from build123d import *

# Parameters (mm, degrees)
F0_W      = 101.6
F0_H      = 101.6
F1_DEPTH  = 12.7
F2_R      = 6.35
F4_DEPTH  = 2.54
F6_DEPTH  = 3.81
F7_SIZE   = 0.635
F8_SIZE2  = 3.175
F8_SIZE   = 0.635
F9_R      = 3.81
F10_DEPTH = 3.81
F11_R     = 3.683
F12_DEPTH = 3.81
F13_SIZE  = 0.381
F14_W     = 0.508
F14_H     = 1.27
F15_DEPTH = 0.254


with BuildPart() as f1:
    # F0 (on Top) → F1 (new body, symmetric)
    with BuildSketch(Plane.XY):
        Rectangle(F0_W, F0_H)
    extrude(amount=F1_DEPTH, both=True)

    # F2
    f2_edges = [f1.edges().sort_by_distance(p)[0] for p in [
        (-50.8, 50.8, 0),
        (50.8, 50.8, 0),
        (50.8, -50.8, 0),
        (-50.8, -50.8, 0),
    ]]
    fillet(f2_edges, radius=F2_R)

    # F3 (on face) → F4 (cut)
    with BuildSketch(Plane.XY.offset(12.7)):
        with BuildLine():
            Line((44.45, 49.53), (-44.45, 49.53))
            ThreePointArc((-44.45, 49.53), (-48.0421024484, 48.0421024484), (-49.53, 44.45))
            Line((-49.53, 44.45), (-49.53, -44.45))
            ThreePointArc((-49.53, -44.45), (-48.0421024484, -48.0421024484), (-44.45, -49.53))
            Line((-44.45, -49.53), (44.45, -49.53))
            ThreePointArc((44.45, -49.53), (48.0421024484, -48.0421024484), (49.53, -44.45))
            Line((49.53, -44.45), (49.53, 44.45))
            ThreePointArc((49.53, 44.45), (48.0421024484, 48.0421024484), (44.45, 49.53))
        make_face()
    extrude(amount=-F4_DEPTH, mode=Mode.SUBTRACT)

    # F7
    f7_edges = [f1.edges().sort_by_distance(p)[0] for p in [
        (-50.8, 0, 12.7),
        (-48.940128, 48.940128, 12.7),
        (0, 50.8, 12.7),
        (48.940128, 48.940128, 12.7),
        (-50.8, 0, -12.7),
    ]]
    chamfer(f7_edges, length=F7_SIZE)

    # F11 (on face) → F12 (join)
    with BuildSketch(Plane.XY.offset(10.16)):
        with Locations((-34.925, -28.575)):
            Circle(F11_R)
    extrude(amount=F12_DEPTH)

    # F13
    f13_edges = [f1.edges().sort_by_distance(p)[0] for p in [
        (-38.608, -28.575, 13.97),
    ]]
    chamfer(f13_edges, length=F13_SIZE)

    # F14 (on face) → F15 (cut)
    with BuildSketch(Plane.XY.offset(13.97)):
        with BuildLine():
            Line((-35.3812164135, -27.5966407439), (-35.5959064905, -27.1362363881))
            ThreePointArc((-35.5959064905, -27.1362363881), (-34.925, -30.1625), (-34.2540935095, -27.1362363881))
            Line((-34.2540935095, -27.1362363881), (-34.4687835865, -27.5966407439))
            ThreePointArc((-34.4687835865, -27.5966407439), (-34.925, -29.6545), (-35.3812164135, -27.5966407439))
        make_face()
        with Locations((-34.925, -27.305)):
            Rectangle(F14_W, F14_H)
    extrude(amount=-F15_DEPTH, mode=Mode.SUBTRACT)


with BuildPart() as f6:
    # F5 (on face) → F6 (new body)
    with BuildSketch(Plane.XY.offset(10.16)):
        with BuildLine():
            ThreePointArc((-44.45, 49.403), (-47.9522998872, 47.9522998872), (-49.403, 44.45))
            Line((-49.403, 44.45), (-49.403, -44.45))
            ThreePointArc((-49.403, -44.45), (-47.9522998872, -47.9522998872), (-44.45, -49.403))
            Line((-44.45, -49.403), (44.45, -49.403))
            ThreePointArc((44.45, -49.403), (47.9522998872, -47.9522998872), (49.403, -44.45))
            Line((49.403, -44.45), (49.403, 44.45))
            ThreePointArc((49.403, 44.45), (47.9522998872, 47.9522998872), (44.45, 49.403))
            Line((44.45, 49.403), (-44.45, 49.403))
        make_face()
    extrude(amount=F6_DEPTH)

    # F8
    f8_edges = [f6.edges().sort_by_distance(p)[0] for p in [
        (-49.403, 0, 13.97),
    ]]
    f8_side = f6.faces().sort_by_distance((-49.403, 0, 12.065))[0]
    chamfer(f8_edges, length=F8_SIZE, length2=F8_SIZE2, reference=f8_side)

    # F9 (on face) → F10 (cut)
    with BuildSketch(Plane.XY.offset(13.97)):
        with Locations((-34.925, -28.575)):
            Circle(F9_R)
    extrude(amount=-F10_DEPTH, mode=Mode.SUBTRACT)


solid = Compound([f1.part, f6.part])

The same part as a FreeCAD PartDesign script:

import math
import FreeCAD as App
import Part
import Sketcher
Q = App.Units.Quantity


def edges_at(feature, points):
    """Names of the edges that pass closest to the given points."""
    edges = feature.Shape.Edges
    near = lambda p: min(range(len(edges)), key=lambda i: edges[i].distToShape(Part.Vertex(*p))[0])
    return sorted({f"Edge{near(p) + 1}" for p in points})


def add_polygon(sketch, points):
    """Adds a closed chain of lines whose ends are joined by coincident constraints."""
    first, n = sketch.GeometryCount, len(points)
    for a, b in zip(points, points[1:] + points[:1]):
        sketch.addGeometry(Part.LineSegment(App.Vector(*a, 0), App.Vector(*b, 0)), False)
    for i in range(n):
        sketch.addConstraint(Sketcher.Constraint("Coincident", first + i, 2, first + (i + 1) % n, 1))

doc = App.newDocument("Part")
body = doc.addObject("PartDesign::Body", "Body")

sketch1 = body.newObject("Sketcher::SketchObject", "Sketch")
sketch1.AttachmentSupport = (doc.getObject("XY_Plane"), [""])
sketch1.MapMode = "FlatFace"
add_polygon(sketch1, [(-50.8, 50.8), (-50.8, -50.8), (50.8, -50.8), (50.8, 50.8)])
sketch1.addConstraint([
    Sketcher.Constraint("Vertical", 0),
    Sketcher.Constraint("Horizontal", 1),
    Sketcher.Constraint("Vertical", 2),
    Sketcher.Constraint("Horizontal", 3),
    Sketcher.Constraint("Symmetric", 0, 2, 2, 2, -1, 1),
    Sketcher.Constraint("Equal", 3, 0),
    Sketcher.Constraint("DistanceX", 1, 1, 1, 2, Q("4 in")),
])
pad1 = body.newObject("PartDesign::Pad", "Pad")
pad1.Profile = sketch1
pad1.Length = Q("1 in")
pad1.Midplane = True
doc.recompute()

fillet = body.newObject("PartDesign::Fillet", "Fillet")
fillet.Base = (pad1, edges_at(pad1, [
    (-50.8, 50.8, 0),
    (50.8, 50.8, 0),
    (50.8, -50.8, 0),
    (-50.8, -50.8, 0),
]))
fillet.Radius = Q("0.25 in")

sketch2 = body.newObject("Sketcher::SketchObject", "Sketch001")
sketch2.AttachmentSupport = (doc.getObject("XY_Plane"), [""])
sketch2.MapMode = "FlatFace"
sketch2.AttachmentOffset = App.Placement(App.Vector(0, 0, 0.5 * 25.4), App.Rotation())
sketch2.addGeometry([
    Part.LineSegment(App.Vector(44.45, 49.53, 0), App.Vector(-44.45, 49.53, 0)),
    Part.ArcOfCircle(Part.Circle(App.Vector(-44.45, 44.45, 0), App.Vector(0, 0, 1), 5.08), math.radians(90), math.radians(180)),
    Part.LineSegment(App.Vector(-49.53, 44.45, 0), App.Vector(-49.53, -44.45, 0)),
    Part.ArcOfCircle(Part.Circle(App.Vector(-44.45, -44.45, 0), App.Vector(0, 0, 1), 5.08), math.radians(180), math.radians(270)),
    Part.LineSegment(App.Vector(-44.45, -49.53, 0), App.Vector(44.45, -49.53, 0)),
    Part.ArcOfCircle(Part.Circle(App.Vector(44.45, -44.45, 0), App.Vector(0, 0, 1), 5.08), math.radians(-90), math.radians(0)),
    Part.LineSegment(App.Vector(49.53, -44.45, 0), App.Vector(49.53, 44.45, 0)),
    Part.ArcOfCircle(Part.Circle(App.Vector(44.45, 44.45, 0), App.Vector(0, 0, 1), 5.08), math.radians(0), math.radians(90)),
], False)
sketch2.addConstraint([
    Sketcher.Constraint("Tangent", 0, 2, 1, 1),
    Sketcher.Constraint("Tangent", 1, 2, 2, 1),
    Sketcher.Constraint("Tangent", 2, 2, 3, 1),
    Sketcher.Constraint("Tangent", 3, 2, 4, 1),
    Sketcher.Constraint("Tangent", 4, 2, 5, 1),
    Sketcher.Constraint("Tangent", 5, 2, 6, 1),
    Sketcher.Constraint("Tangent", 6, 2, 7, 1),
    Sketcher.Constraint("Tangent", 7, 2, 0, 1),
    Sketcher.Constraint("Horizontal", 0),
    Sketcher.Constraint("Vertical", 2),
    Sketcher.Constraint("Horizontal", 4),
    Sketcher.Constraint("Vertical", 6),
    Sketcher.Constraint("Equal", 1, 3),
    Sketcher.Constraint("Equal", 3, 5),
    Sketcher.Constraint("Equal", 5, 7),
    Sketcher.Constraint("Symmetric", 1, 3, 5, 3, -1, 1),
    Sketcher.Constraint("Equal", 4, 2),
    Sketcher.Constraint("Radius", 1, Q("0.2 in")),
    Sketcher.Constraint("DistanceX", 0, 2, 0, 1, Q("3.5 in")),
])
pocket1 = body.newObject("PartDesign::Pocket", "Pocket")
pocket1.Profile = sketch2
pocket1.Length = Q("0.1 in")
doc.recompute()

chamfer = body.newObject("PartDesign::Chamfer", "Chamfer")
chamfer.Base = (pocket1, edges_at(pocket1, [
    (-50.8, 0, 12.7),
    (-48.94, 48.94, 12.7),
    (0, 50.8, 12.7),
    (48.94, 48.94, 12.7),
    (-50.8, 0, -12.7),
]))
chamfer.Size = Q("0.025 in")

sketch3 = body.newObject("Sketcher::SketchObject", "Sketch002")
sketch3.AttachmentSupport = (doc.getObject("XY_Plane"), [""])
sketch3.MapMode = "FlatFace"
sketch3.AttachmentOffset = App.Placement(App.Vector(0, 0, 0.4 * 25.4), App.Rotation())
sketch3.addGeometry(Part.Circle(App.Vector(-34.925, -28.575, 0), App.Vector(0, 0, 1), 3.683), False)
sketch3.addConstraint([
    Sketcher.Constraint("Diameter", 0, Q("0.29 in")),
    Sketcher.Constraint("DistanceX", 0, 3, -1, 1, Q("1.375 in")),
    Sketcher.Constraint("DistanceY", 0, 3, -1, 1, Q("1.125 in")),
])
pad2 = body.newObject("PartDesign::Pad", "Pad001")
pad2.Profile = sketch3
pad2.Length = Q("0.15 in")
doc.recompute()

chamfer2 = body.newObject("PartDesign::Chamfer", "Chamfer001")
chamfer2.Base = (pad2, edges_at(pad2, [(-38.608, -28.575, 13.97)]))
chamfer2.Size = Q("0.015 in")

sketch4 = body.newObject("Sketcher::SketchObject", "Sketch003")
sketch4.AttachmentSupport = (doc.getObject("XY_Plane"), [""])
sketch4.MapMode = "FlatFace"
sketch4.AttachmentOffset = App.Placement(App.Vector(0, 0, 0.55 * 25.4), App.Rotation())
sketch4.addGeometry(Part.LineSegment(App.Vector(-35.381216, -27.596641, 0), App.Vector(-35.595906, -27.136236, 0)), False)
sketch4.addGeometry(Part.ArcOfCircle(Part.Circle(App.Vector(-34.925, -28.575, 0), App.Vector(0, 0, 1), 1.5875), math.radians(115), math.radians(425)), False)
sketch4.addGeometry(Part.LineSegment(App.Vector(-34.254094, -27.136236, 0), App.Vector(-34.468784, -27.596641, 0)), False)
sketch4.addGeometry(Part.ArcOfCircle(Part.Circle(App.Vector(-34.925, -28.575, 0), App.Vector(0, 0, 1), 1.0795), math.radians(115), math.radians(425)), False)
add_polygon(sketch4, [(-35.179, -26.67), (-35.179, -27.94), (-34.671, -27.94), (-34.671, -26.67)])
sketch4.addConstraint([
    Sketcher.Constraint("Coincident", 0, 2, 1, 1),
    Sketcher.Constraint("Coincident", 1, 2, 2, 1),
    Sketcher.Constraint("Coincident", 2, 2, 3, 2),
    Sketcher.Constraint("Coincident", 3, 1, 0, 1),
    Sketcher.Constraint("Vertical", 4),
    Sketcher.Constraint("Horizontal", 5),
    Sketcher.Constraint("Vertical", 6),
    Sketcher.Constraint("Horizontal", 7),
    Sketcher.Constraint("Coincident", 3, 3, 1, 3),
    Sketcher.Constraint("Horizontal", 0, 2, 1, 2),
    Sketcher.Constraint("Horizontal", 2, 2, 3, 1),
    Sketcher.Constraint("Angle", 0, Q("115 deg")),
    Sketcher.Constraint("Radius", 1, Q("0.0625 in")),
    Sketcher.Constraint("DistanceX", 5, 1, 5, 2, Q("0.02 in")),
    Sketcher.Constraint("DistanceY", 4, 2, 4, 1, Q("0.05 in")),
    Sketcher.Constraint("DistanceY", 4, 2, -1, 1, Q("1.1 in")),
    Sketcher.Constraint("Radius", 3, Q("0.0425 in")),
    Sketcher.Constraint("DistanceX", 4, 2, 1, 3, Q("0.01 in")),
    Sketcher.Constraint("DistanceX", 1, 3, -1, 1, Q("1.375 in")),
    Sketcher.Constraint("DistanceY", 1, 3, -1, 1, Q("1.125 in")),
    Sketcher.Constraint("DistanceY", 2, 2, -1, 1, Q("27.596641 mm")),
])
pocket2 = body.newObject("PartDesign::Pocket", "Pocket001")
pocket2.Profile = sketch4
pocket2.Length = Q("0.01 in")
body2 = doc.addObject("PartDesign::Body", "Body001")

sketch5 = body2.newObject("Sketcher::SketchObject", "Sketch004")
sketch5.AttachmentSupport = (doc.getObject("XY_Plane001"), [""])
sketch5.MapMode = "FlatFace"
sketch5.AttachmentOffset = App.Placement(App.Vector(0, 0, 0.4 * 25.4), App.Rotation())
sketch5.addGeometry([
    Part.ArcOfCircle(Part.Circle(App.Vector(-44.45, 44.45, 0), App.Vector(0, 0, 1), 4.953), math.radians(90), math.radians(180)),
    Part.LineSegment(App.Vector(-49.403, 44.45, 0), App.Vector(-49.403, -44.45, 0)),
    Part.ArcOfCircle(Part.Circle(App.Vector(-44.45, -44.45, 0), App.Vector(0, 0, 1), 4.953), math.radians(180), math.radians(270)),
    Part.LineSegment(App.Vector(-44.45, -49.403, 0), App.Vector(44.45, -49.403, 0)),
    Part.ArcOfCircle(Part.Circle(App.Vector(44.45, -44.45, 0), App.Vector(0, 0, 1), 4.953), math.radians(-90), math.radians(0)),
    Part.LineSegment(App.Vector(49.403, -44.45, 0), App.Vector(49.403, 44.45, 0)),
    Part.ArcOfCircle(Part.Circle(App.Vector(44.45, 44.45, 0), App.Vector(0, 0, 1), 4.953), math.radians(0), math.radians(90)),
    Part.LineSegment(App.Vector(44.45, 49.403, 0), App.Vector(-44.45, 49.403, 0)),
], False)
sketch5.addConstraint([
    Sketcher.Constraint("Tangent", 0, 2, 1, 1),
    Sketcher.Constraint("Tangent", 1, 2, 2, 1),
    Sketcher.Constraint("Tangent", 2, 2, 3, 1),
    Sketcher.Constraint("Tangent", 3, 2, 4, 1),
    Sketcher.Constraint("Tangent", 4, 2, 5, 1),
    Sketcher.Constraint("Tangent", 5, 2, 6, 1),
    Sketcher.Constraint("Tangent", 6, 2, 7, 1),
    Sketcher.Constraint("Tangent", 7, 2, 0, 1),
    Sketcher.Constraint("Vertical", 1),
    Sketcher.Constraint("Horizontal", 3),
    Sketcher.Constraint("Vertical", 5),
    Sketcher.Constraint("Horizontal", 7),
    Sketcher.Constraint("Equal", 0, 2),
    Sketcher.Constraint("Equal", 2, 4),
    Sketcher.Constraint("Equal", 4, 6),
    Sketcher.Constraint("Symmetric", 0, 3, 4, 3, -1, 1),
    Sketcher.Constraint("Equal", 7, 1),
    Sketcher.Constraint("DistanceX", 3, 1, 3, 2, Q("3.5 in")),
    Sketcher.Constraint("Radius", 0, Q("0.195 in")),
])
pad3 = body2.newObject("PartDesign::Pad", "Pad002")
pad3.Profile = sketch5
pad3.Length = Q("0.15 in")
doc.recompute()

chamfer3 = body2.newObject("PartDesign::Chamfer", "Chamfer002")
chamfer3.Base = (pad3, edges_at(pad3, [(-49.403, 0, 13.97)]))
chamfer3.ChamferType = "Two distances"
chamfer3.Size = Q("0.025 in")
chamfer3.Size2 = Q("0.125 in")

sketch6 = body2.newObject("Sketcher::SketchObject", "Sketch005")
sketch6.AttachmentSupport = (doc.getObject("XY_Plane001"), [""])
sketch6.MapMode = "FlatFace"
sketch6.AttachmentOffset = App.Placement(App.Vector(0, 0, 0.55 * 25.4), App.Rotation())
sketch6.addGeometry(Part.Circle(App.Vector(-34.925, -28.575, 0), App.Vector(0, 0, 1), 3.81), False)
sketch6.addConstraint([
    Sketcher.Constraint("Diameter", 0, Q("0.3 in")),
    Sketcher.Constraint("DistanceX", 0, 3, -1, 1, Q("1.375 in")),
    Sketcher.Constraint("DistanceY", 0, 3, -1, 1, Q("1.125 in")),
])
pocket3 = body2.newObject("PartDesign::Pocket", "Pocket002")
pocket3.Profile = sketch6
pocket3.Length = Q("0.15 in")

doc.recompute()
